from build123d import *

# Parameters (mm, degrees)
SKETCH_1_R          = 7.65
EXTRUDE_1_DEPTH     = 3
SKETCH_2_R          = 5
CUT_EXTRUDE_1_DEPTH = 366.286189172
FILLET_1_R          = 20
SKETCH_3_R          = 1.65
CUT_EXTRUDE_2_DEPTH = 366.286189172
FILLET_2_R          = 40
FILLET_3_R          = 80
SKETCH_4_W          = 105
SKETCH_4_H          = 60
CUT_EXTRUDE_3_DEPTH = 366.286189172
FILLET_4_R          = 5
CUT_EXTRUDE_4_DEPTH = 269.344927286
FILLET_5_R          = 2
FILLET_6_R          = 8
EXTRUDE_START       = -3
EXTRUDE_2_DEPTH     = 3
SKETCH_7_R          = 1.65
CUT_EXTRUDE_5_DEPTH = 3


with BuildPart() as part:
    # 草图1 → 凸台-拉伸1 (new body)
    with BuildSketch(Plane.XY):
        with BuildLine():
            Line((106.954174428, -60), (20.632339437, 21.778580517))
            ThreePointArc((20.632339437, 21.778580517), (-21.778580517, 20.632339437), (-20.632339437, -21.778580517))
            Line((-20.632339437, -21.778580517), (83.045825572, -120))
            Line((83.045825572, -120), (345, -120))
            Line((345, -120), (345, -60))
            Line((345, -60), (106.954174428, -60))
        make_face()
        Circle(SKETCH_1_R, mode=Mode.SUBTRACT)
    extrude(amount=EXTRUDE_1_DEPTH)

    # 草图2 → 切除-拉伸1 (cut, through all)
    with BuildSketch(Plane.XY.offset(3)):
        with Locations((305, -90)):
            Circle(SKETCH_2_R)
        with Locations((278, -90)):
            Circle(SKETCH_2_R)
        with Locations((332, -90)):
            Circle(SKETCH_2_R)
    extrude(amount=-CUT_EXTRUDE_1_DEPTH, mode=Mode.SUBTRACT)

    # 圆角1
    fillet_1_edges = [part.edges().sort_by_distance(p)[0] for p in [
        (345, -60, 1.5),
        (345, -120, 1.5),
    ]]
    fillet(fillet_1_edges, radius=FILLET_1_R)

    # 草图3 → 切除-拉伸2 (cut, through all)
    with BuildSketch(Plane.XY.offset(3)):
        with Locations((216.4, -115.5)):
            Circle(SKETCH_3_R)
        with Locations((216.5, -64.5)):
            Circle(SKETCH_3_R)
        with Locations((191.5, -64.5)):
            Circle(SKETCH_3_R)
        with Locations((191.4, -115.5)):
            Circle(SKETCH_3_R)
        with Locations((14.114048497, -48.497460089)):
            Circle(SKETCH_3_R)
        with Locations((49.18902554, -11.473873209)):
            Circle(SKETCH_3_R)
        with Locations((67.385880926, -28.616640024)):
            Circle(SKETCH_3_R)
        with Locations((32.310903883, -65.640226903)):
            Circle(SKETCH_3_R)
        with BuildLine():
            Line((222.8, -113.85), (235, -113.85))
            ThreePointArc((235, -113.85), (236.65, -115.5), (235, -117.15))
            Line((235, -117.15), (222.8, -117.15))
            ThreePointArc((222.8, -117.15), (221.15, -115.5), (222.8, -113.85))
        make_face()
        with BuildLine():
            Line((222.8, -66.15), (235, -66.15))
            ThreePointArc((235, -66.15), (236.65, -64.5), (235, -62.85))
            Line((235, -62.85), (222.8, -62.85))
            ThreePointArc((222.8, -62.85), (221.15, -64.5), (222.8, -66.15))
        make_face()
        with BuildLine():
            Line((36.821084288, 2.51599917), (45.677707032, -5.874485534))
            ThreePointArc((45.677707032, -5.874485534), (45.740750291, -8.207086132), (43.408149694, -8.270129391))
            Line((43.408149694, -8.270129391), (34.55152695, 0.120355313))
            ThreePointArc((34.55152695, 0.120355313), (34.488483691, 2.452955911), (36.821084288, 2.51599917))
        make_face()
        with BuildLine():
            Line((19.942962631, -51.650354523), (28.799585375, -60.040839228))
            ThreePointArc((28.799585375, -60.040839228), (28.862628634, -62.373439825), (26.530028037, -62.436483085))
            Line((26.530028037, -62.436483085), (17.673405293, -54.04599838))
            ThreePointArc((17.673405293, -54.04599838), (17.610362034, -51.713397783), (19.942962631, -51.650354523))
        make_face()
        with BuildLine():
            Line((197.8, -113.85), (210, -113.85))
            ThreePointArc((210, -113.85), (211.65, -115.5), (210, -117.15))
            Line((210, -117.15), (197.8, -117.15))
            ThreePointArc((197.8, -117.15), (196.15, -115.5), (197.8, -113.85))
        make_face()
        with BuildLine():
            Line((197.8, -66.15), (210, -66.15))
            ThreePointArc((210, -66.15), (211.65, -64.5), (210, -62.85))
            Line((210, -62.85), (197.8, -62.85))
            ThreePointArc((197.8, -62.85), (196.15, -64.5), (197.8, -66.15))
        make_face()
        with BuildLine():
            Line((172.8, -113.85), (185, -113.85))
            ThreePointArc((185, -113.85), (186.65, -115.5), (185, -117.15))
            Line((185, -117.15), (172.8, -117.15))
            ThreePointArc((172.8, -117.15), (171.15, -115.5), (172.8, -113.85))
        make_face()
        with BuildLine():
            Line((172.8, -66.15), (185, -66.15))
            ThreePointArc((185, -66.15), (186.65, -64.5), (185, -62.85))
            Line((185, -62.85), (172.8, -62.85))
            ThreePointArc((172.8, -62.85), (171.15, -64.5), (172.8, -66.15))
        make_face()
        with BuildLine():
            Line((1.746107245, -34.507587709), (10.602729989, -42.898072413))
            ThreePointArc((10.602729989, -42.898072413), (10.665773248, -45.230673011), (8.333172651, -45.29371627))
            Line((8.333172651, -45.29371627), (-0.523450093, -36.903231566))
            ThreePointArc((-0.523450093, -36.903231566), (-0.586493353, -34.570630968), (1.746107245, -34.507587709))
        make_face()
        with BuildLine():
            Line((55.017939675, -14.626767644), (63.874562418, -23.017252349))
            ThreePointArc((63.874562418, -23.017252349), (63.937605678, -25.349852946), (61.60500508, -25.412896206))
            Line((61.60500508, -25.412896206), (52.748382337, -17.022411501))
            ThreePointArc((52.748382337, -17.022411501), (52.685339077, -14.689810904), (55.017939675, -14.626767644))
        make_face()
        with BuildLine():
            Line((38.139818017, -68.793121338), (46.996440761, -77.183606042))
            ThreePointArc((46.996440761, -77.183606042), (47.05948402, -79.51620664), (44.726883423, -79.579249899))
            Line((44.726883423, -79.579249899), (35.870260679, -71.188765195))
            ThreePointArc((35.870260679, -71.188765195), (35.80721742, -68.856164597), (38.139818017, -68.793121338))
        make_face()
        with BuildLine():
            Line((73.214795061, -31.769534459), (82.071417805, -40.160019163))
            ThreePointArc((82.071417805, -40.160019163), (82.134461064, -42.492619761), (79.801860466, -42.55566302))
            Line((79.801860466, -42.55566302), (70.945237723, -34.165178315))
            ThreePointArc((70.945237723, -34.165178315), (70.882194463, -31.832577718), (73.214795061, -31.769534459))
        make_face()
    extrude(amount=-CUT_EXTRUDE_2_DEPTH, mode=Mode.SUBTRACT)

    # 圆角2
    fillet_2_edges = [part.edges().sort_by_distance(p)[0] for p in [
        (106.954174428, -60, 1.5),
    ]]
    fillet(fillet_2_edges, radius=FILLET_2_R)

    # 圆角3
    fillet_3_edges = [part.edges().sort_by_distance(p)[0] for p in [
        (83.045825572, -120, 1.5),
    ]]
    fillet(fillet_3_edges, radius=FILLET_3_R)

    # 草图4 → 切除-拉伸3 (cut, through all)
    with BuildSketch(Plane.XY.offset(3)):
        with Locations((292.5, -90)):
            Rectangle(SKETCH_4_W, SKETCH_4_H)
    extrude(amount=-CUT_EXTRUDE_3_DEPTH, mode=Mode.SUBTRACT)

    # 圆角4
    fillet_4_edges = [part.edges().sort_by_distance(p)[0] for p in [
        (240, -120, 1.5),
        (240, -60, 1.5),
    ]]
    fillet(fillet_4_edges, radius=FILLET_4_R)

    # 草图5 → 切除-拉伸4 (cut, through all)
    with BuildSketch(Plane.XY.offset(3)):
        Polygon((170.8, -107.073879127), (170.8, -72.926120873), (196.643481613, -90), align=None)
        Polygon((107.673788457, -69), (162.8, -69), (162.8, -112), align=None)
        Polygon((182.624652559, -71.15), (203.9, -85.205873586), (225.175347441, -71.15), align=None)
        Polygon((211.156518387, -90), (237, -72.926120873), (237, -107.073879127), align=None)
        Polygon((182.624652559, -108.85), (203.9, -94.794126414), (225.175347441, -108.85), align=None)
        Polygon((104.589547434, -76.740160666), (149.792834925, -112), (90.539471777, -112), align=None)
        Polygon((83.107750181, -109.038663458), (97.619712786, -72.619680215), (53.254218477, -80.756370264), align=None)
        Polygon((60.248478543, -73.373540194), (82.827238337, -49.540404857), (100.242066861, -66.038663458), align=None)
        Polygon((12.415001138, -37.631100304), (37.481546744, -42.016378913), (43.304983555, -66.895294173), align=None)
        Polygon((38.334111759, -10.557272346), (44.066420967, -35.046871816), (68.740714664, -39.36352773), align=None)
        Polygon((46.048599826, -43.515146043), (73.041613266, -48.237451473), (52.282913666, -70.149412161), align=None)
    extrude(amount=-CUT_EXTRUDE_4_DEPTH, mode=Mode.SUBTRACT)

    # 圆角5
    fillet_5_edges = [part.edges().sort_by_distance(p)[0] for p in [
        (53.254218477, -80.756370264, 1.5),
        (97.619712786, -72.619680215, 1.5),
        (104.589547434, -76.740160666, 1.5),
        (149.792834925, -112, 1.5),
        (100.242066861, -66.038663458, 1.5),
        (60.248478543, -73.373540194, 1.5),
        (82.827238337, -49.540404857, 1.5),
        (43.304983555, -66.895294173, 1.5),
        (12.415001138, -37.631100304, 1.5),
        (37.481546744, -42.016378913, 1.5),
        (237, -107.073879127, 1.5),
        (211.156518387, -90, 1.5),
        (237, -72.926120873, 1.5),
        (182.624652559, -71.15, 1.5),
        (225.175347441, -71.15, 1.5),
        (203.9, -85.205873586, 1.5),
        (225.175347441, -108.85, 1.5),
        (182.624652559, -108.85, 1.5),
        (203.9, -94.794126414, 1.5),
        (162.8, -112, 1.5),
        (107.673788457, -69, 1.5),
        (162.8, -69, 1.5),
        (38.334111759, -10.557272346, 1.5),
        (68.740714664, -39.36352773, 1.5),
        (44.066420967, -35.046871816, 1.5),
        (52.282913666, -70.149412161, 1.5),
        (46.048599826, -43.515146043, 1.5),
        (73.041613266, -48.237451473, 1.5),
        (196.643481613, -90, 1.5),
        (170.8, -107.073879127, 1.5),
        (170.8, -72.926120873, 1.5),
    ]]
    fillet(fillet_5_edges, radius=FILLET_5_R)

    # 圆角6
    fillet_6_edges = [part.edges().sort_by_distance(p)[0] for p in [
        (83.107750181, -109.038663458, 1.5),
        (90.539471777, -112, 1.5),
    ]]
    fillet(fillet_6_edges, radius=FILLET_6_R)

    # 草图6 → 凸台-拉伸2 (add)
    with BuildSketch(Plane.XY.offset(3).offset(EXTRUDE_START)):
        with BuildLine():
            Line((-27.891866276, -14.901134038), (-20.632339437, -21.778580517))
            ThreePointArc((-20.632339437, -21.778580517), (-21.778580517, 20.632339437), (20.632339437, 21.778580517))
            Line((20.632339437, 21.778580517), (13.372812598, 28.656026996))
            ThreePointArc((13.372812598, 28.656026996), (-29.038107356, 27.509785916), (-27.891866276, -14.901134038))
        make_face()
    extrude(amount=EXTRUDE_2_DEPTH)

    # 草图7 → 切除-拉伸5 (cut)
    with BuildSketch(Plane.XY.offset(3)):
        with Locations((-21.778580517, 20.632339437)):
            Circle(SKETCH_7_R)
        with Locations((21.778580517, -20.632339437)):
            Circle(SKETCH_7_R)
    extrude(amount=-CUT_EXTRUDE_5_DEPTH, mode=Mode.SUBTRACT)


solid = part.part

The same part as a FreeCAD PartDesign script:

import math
import FreeCAD as App
import Part
import Sketcher

V = App.Vector


def edges_at(feature, points):
    """Names of the edges that pass closest to the given points."""
    edges = feature.Shape.Edges
    near = lambda p: min(range(len(edges)), key=lambda i: edges[i].distToShape(Part.Vertex(*p))[0])
    return sorted({f"Edge{near(p) + 1}" for p in points})


def add_polygon(sketch, points):
    """Adds a closed chain of lines whose ends are joined by coincident constraints."""
    first, n = sketch.GeometryCount, len(points)
    for a, b in zip(points, points[1:] + points[:1]):
        sketch.addGeometry(Part.LineSegment(App.Vector(*a, 0), App.Vector(*b, 0)), False)
    for i in range(n):
        sketch.addConstraint(Sketcher.Constraint("Coincident", first + i, 2, first + (i + 1) % n, 1))

doc = App.newDocument("Part")
body = doc.addObject("PartDesign::Body", "Body")

sketch1 = body.newObject("Sketcher::SketchObject", "Sketch")
sketch1.AttachmentSupport = (doc.getObject("XY_Plane"), [""])
sketch1.MapMode = "FlatFace"
sketch1.addGeometry(Part.LineSegment(V(107, -60, 0), V(21, 22, 0)), False)
sketch1.addGeometry(Part.ArcOfCircle(Part.Circle(V(0, 0, 0), V(0, 0, 1), 30), math.radians(47), math.radians(227)), False)
sketch1.addGeometry(Part.LineSegment(V(-21, -22, 0), V(83, -120, 0)), False)
sketch1.addGeometry(Part.LineSegment(V(83, -120, 0), V(345, -120, 0)), False)
sketch1.addGeometry(Part.LineSegment(V(345, -120, 0), V(345, -60, 0)), False)
sketch1.addGeometry(Part.LineSegment(V(345, -60, 0), V(107, -60, 0)), False)
sketch1.addGeometry(Part.Circle(V(0, 0, 0), V(0, 0, 1), 8), False)
sketch1.addConstraint(Sketcher.Constraint("Tangent", 0, 2, 1, 1))
sketch1.addConstraint(Sketcher.Constraint("Tangent", 1, 2, 2, 1))
sketch1.addConstraint(Sketcher.Constraint("Coincident", 2, 2, 3, 1))
sketch1.addConstraint(Sketcher.Constraint("Coincident", 3, 2, 4, 1))
sketch1.addConstraint(Sketcher.Constraint("Coincident", 4, 2, 5, 1))
sketch1.addConstraint(Sketcher.Constraint("Coincident", 5, 2, 0, 1))
sketch1.addConstraint(Sketcher.Constraint("Horizontal", 3))
sketch1.addConstraint(Sketcher.Constraint("Vertical", 4))
sketch1.addConstraint(Sketcher.Constraint("Horizontal", 5))
sketch1.addConstraint(Sketcher.Constraint("Coincident", 1, 3, -1, 1))
sketch1.addConstraint(Sketcher.Constraint("Coincident", 6, 3, -1, 1))
sketch1.addConstraint(Sketcher.Constraint("Parallel", 0, 2))
sketch1.addConstraint(Sketcher.Constraint("Radius", 1, 30.0))
sketch1.addConstraint(Sketcher.Constraint("Diameter", 6, 15.3))
sketch1.addConstraint(Sketcher.Constraint("DistanceY", 4, 1, 4, 2, 60.0))
sketch1.addConstraint(Sketcher.Constraint("DistanceY", 2, 2, -1, 1, 120.0))
sketch1.addConstraint(Sketcher.Constraint("DistanceX", -1, 1, 3, 2, 345.0))
sketch1.addConstraint(Sketcher.Constraint("Distance", 0, 118.908349))
pad1 = body.newObject("PartDesign::Pad", "Pad")
pad1.Profile = sketch1
pad1.Length = 3

sketch2 = body.newObject("Sketcher::SketchObject", "Sketch001")
sketch2.AttachmentSupport = (doc.getObject("XY_Plane"), [""])
sketch2.MapMode = "FlatFace"
sketch2.AttachmentOffset = App.Placement(V(0, 0, 3), App.Rotation())
sketch2.addGeometry(Part.Circle(V(305, -90, 0), V(0, 0, 1), 5), False)
sketch2.addGeometry(Part.Circle(V(278, -90, 0), V(0, 0, 1), 5), False)
sketch2.addGeometry(Part.Circle(V(332, -90, 0), V(0, 0, 1), 5), False)
sketch2.addConstraint(Sketcher.Constraint("Equal", 0, 1))
sketch2.addConstraint(Sketcher.Constraint("Equal", 1, 2))
sketch2.addConstraint(Sketcher.Constraint("Horizontal", 0, 3, 1, 3))
sketch2.addConstraint(Sketcher.Constraint("Horizontal", 1, 3, 2, 3))
sketch2.addConstraint(Sketcher.Constraint("Diameter", 0, 10.0))
sketch2.addConstraint(Sketcher.Constraint("DistanceX", -1, 1, 0, 3, 305.0))
sketch2.addConstraint(Sketcher.Constraint("DistanceY", 0, 3, -1, 1, 90.0))
sketch2.addConstraint(Sketcher.Constraint("DistanceX", -1, 1, 1, 3, 278.0))
sketch2.addConstraint(Sketcher.Constraint("DistanceX", -1, 1, 2, 3, 332.0))
pocket1 = body.newObject("PartDesign::Pocket", "Pocket")
pocket1.Profile = sketch2
pocket1.Type = "ThroughAll"
doc.recompute()

fillet = body.newObject("PartDesign::Fillet", "Fillet")
fillet.Base = (pocket1, edges_at(pocket1, [(345, -60, 1.5), (345, -120, 1.5)]))
fillet.Radius = 20

sketch3 = body.newObject("Sketcher::SketchObject", "Sketch002")
sketch3.AttachmentSupport = (doc.getObject("XY_Plane"), [""])
sketch3.MapMode = "FlatFace"
sketch3.AttachmentOffset = App.Placement(V(0, 0, 3), App.Rotation())
sketch3.addGeometry(Part.Circle(V(216.4, -115.5, 0), V(0, 0, 1), 1.6), False)
sketch3.addGeometry(Part.Circle(V(216.5, -64.5, 0), V(0, 0, 1), 1.6), False)
sketch3.addGeometry(Part.Circle(V(191.5, -64.5, 0), V(0, 0, 1), 1.6), False)
sketch3.addGeometry(Part.Circle(V(191.4, -115.5, 0), V(0, 0, 1), 1.6), False)
sketch3.addGeometry(Part.Circle(V(14.1, -48.5, 0), V(0, 0, 1), 1.6), False)
sketch3.addGeometry(Part.Circle(V(49.2, -11.5, 0), V(0, 0, 1), 1.6), False)
sketch3.addGeometry(Part.Circle(V(67.4, -28.6, 0), V(0, 0, 1), 1.6), False)
sketch3.addGeometry(Part.Circle(V(32.3, -65.6, 0), V(0, 0, 1), 1.6), False)
sketch3.addGeometry(Part.LineSegment(V(235, -113.8, 0), V(222.8, -113.8, 0)), False)
sketch3.addGeometry(Part.ArcOfCircle(Part.Circle(V(222.8, -115.5, 0), V(0, 0, 1), 1.6), math.radians(90), math.radians(270)), False)
sketch3.addGeometry(Part.LineSegment(V(222.8, -117.2, 0), V(235, -117.2, 0)), False)
sketch3.addGeometry(Part.ArcOfCircle(Part.Circle(V(235, -115.5, 0), V(0, 0, 1), 1.6), math.radians(-90), math.radians(90)), False)
sketch3.addGeometry(Part.LineSegment(V(222.8, -66.2, 0), V(235, -66.2, 0)), False)
sketch3.addGeometry(Part.ArcOfCircle(Part.Circle(V(235, -64.5, 0), V(0, 0, 1), 1.6), math.radians(-90), math.radians(90)), False)
sketch3.addGeometry(Part.LineSegment(V(235, -62.9, 0), V(222.8, -62.9, 0)), False)
sketch3.addGeometry(Part.ArcOfCircle(Part.Circle(V(222.8, -64.5, 0), V(0, 0, 1), 1.6), math.radians(90), math.radians(270)), False)
sketch3.addGeometry(Part.LineSegment(V(45.7, -5.9, 0), V(36.8, 2.5, 0)), False)
sketch3.addGeometry(Part.ArcOfCircle(Part.Circle(V(35.7, 1.3, 0), V(0, 0, 1), 1.6), math.radians(47), math.radians(227)), False)
sketch3.addGeometry(Part.LineSegment(V(34.6, 0.1, 0), V(43.4, -8.3, 0)), False)
sketch3.addGeometry(Part.ArcOfCircle(Part.Circle(V(44.5, -7.1, 0), V(0, 0, 1), 1.6), math.radians(-133), math.radians(47)), False)
sketch3.addGeometry(Part.LineSegment(V(28.8, -60, 0), V(19.9, -51.7, 0)), False)
sketch3.addGeometry(Part.ArcOfCircle(Part.Circle(V(18.8, -52.8, 0), V(0, 0, 1), 1.6), math.radians(47), math.radians(227)), False)
sketch3.addGeometry(Part.LineSegment(V(17.7, -54, 0), V(26.5, -62.4, 0)), False)
sketch3.addGeometry(Part.ArcOfCircle(Part.Circle(V(27.7, -61.2, 0), V(0, 0, 1), 1.6), math.radians(-133), math.radians(47)), False)
sketch3.addGeometry(Part.LineSegment(V(210, -113.8, 0), V(197.8, -113.8, 0)), False)
sketch3.addGeometry(Part.ArcOfCircle(Part.Circle(V(197.8, -115.5, 0), V(0, 0, 1), 1.6), math.radians(90), math.radians(270)), False)
sketch3.addGeometry(Part.LineSegment(V(197.8, -117.2, 0), V(210, -117.2, 0)), False)
sketch3.addGeometry(Part.ArcOfCircle(Part.Circle(V(210, -115.5, 0), V(0, 0, 1), 1.6), math.radians(-90), math.radians(90)), False)
sketch3.addGeometry(Part.LineSegment(V(197.8, -66.2, 0), V(210, -66.2, 0)), False)
sketch3.addGeometry(Part.ArcOfCircle(Part.Circle(V(210, -64.5, 0), V(0, 0, 1), 1.6), math.radians(-90), math.radians(90)), False)
sketch3.addGeometry(Part.LineSegment(V(210, -62.9, 0), V(197.8, -62.9, 0)), False)
sketch3.addGeometry(Part.ArcOfCircle(Part.Circle(V(197.8, -64.5, 0), V(0, 0, 1), 1.6), math.radians(90), math.radians(270)), False)
sketch3.addGeometry(Part.LineSegment(V(185, -113.8, 0), V(172.8, -113.8, 0)), False)
sketch3.addGeometry(Part.ArcOfCircle(Part.Circle(V(172.8, -115.5, 0), V(0, 0, 1), 1.6), math.radians(90), math.radians(270)), False)
sketch3.addGeometry(Part.LineSegment(V(172.8, -117.2, 0), V(185, -117.2, 0)), False)
sketch3.addGeometry(Part.ArcOfCircle(Part.Circle(V(185, -115.5, 0), V(0, 0, 1), 1.6), math.radians(-90), math.radians(90)), False)
sketch3.addGeometry(Part.LineSegment(V(172.8, -66.2, 0), V(185, -66.2, 0)), False)
sketch3.addGeometry(Part.ArcOfCircle(Part.Circle(V(185, -64.5, 0), V(0, 0, 1), 1.6), math.radians(-90), math.radians(90)), False)
sketch3.addGeometry(Part.LineSegment(V(185, -62.9, 0), V(172.8, -62.9, 0)), False)
sketch3.addGeometry(Part.ArcOfCircle(Part.Circle(V(172.8, -64.5, 0), V(0, 0, 1), 1.6), math.radians(90), math.radians(270)), False)
sketch3.addGeometry(Part.LineSegment(V(10.6, -42.9, 0), V(1.7, -34.5, 0)), False)
sketch3.addGeometry(Part.ArcOfCircle(Part.Circle(V(0.6, -35.7, 0), V(0, 0, 1), 1.6), math.radians(47), math.radians(227)), False)
sketch3.addGeometry(Part.LineSegment(V(-0.5, -36.9, 0), V(8.3, -45.3, 0)), False)
sketch3.addGeometry(Part.ArcOfCircle(Part.Circle(V(9.5, -44.1, 0), V(0, 0, 1), 1.6), math.radians(-133), math.radians(47)), False)
sketch3.addGeometry(Part.LineSegment(V(63.9, -23, 0), V(55, -14.6, 0)), False)
sketch3.addGeometry(Part.ArcOfCircle(Part.Circle(V(53.9, -15.8, 0), V(0, 0, 1), 1.6), math.radians(47), math.radians(227)), False)
sketch3.addGeometry(Part.LineSegment(V(52.7, -17, 0), V(61.6, -25.4, 0)), False)
sketch3.addGeometry(Part.ArcOfCircle(Part.Circle(V(62.7, -24.2, 0), V(0, 0, 1), 1.6), math.radians(-133), math.radians(47)), False)
sketch3.addGeometry(Part.LineSegment(V(47, -77.2, 0), V(38.1, -68.8, 0)), False)
sketch3.addGeometry(Part.ArcOfCircle(Part.Circle(V(37, -70, 0), V(0, 0, 1), 1.6), math.radians(47), math.radians(227)), False)
sketch3.addGeometry(Part.LineSegment(V(35.9, -71.2, 0), V(44.7, -79.6, 0)), False)
sketch3.addGeometry(Part.ArcOfCircle(Part.Circle(V(45.9, -78.4, 0), V(0, 0, 1), 1.6), math.radians(-133), math.radians(47)), False)
sketch3.addGeometry(Part.LineSegment(V(82.1, -40.2, 0), V(73.2, -31.8, 0)), False)
sketch3.addGeometry(Part.ArcOfCircle(Part.Circle(V(72.1, -33, 0), V(0, 0, 1), 1.6), math.radians(47), math.radians(227)), False)
sketch3.addGeometry(Part.LineSegment(V(70.9, -34.2, 0), V(79.8, -42.6, 0)), False)
sketch3.addGeometry(Part.ArcOfCircle(Part.Circle(V(80.9, -41.4, 0), V(0, 0, 1), 1.6), math.radians(-133), math.radians(47)), False)
sketch3.addConstraint(Sketcher.Constraint("Tangent", 8, 2, 9, 1))
sketch3.addConstraint(Sketcher.Constraint("Tangent", 9, 2, 10, 1))
sketch3.addConstraint(Sketcher.Constraint("Tangent", 10, 2, 11, 1))
sketch3.addConstraint(Sketcher.Constraint("Tangent", 11, 2, 8, 1))
sketch3.addConstraint(Sketcher.Constraint("Tangent", 12, 2, 13, 1))
sketch3.addConstraint(Sketcher.Constraint("Tangent", 13, 2, 14, 1))
sketch3.addConstraint(Sketcher.Constraint("Tangent", 14, 2, 15, 1))
sketch3.addConstraint(Sketcher.Constraint("Tangent", 15, 2, 12, 1))
sketch3.addConstraint(Sketcher.Constraint("Tangent", 16, 2, 17, 1))
sketch3.addConstraint(Sketcher.Constraint("Tangent", 17, 2, 18, 1))
sketch3.addConstraint(Sketcher.Constraint("Tangent", 18, 2, 19, 1))
sketch3.addConstraint(Sketcher.Constraint("Tangent", 19, 2, 16, 1))
sketch3.addConstraint(Sketcher.Constraint("Tangent", 20, 2, 21, 1))
sketch3.addConstraint(Sketcher.Constraint("Tangent", 21, 2, 22, 1))
sketch3.addConstraint(Sketcher.Constraint("Tangent", 22, 2, 23, 1))
sketch3.addConstraint(Sketcher.Constraint("Tangent", 23, 2, 20, 1))
sketch3.addConstraint(Sketcher.Constraint("Tangent", 24, 2, 25, 1))
sketch3.addConstraint(Sketcher.Constraint("Tangent", 25, 2, 26, 1))
sketch3.addConstraint(Sketcher.Constraint("Tangent", 26, 2, 27, 1))
sketch3.addConstraint(Sketcher.Constraint("Tangent", 27, 2, 24, 1))
sketch3.addConstraint(Sketcher.Constraint("Tangent", 28, 2, 29, 1))
sketch3.addConstraint(Sketcher.Constraint("Tangent", 29, 2, 30, 1))
sketch3.addConstraint(Sketcher.Constraint("Tangent", 30, 2, 31, 1))
sketch3.addConstraint(Sketcher.Constraint("Tangent", 31, 2, 28, 1))
sketch3.addConstraint(Sketcher.Constraint("Tangent", 32, 2, 33, 1))
sketch3.addConstraint(Sketcher.Constraint("Tangent", 33, 2, 34, 1))
sketch3.addConstraint(Sketcher.Constraint("Tangent", 34, 2, 35, 1))
sketch3.addConstraint(Sketcher.Constraint("Tangent", 35, 2, 32, 1))
sketch3.addConstraint(Sketcher.Constraint("Tangent", 36, 2, 37, 1))
sketch3.addConstraint(Sketcher.Constraint("Tangent", 37, 2, 38, 1))
sketch3.addConstraint(Sketcher.Constraint("Tangent", 38, 2, 39, 1))
sketch3.addConstraint(Sketcher.Constraint("Tangent", 39, 2, 36, 1))
sketch3.addConstraint(Sketcher.Constraint("Tangent", 40, 2, 41, 1))
sketch3.addConstraint(Sketcher.Constraint("Tangent", 41, 2, 42, 1))
sketch3.addConstraint(Sketcher.Constraint("Tangent", 42, 2, 43, 1))
sketch3.addConstraint(Sketcher.Constraint("Tangent", 43, 2, 40, 1))
sketch3.addConstraint(Sketcher.Constraint("Tangent", 44, 2, 45, 1))
sketch3.addConstraint(Sketcher.Constraint("Tangent", 45, 2, 46, 1))
sketch3.addConstraint(Sketcher.Constraint("Tangent", 46, 2, 47, 1))
sketch3.addConstraint(Sketcher.Constraint("Tangent", 47, 2, 44, 1))
sketch3.addConstraint(Sketcher.Constraint("Tangent", 48, 2, 49, 1))
sketch3.addConstraint(Sketcher.Constraint("Tangent", 49, 2, 50, 1))
sketch3.addConstraint(Sketcher.Constraint("Tangent", 50, 2, 51, 1))
sketch3.addConstraint(Sketcher.Constraint("Tangent", 51, 2, 48, 1))
sketch3.addConstraint(Sketcher.Constraint("Tangent", 52, 2, 53, 1))
sketch3.addConstraint(Sketcher.Constraint("Tangent", 53, 2, 54, 1))
sketch3.addConstraint(Sketcher.Constraint("Tangent", 54, 2, 55, 1))
sketch3.addConstraint(Sketcher.Constraint("Tangent", 55, 2, 52, 1))
sketch3.addConstraint(Sketcher.Constraint("Horizontal", 8))
sketch3.addConstraint(Sketcher.Constraint("Horizontal", 10))
sketch3.addConstraint(Sketcher.Constraint("Horizontal", 12))
sketch3.addConstraint(Sketcher.Constraint("Horizontal", 14))
sketch3.addConstraint(Sketcher.Constraint("Horizontal", 24))
sketch3.addConstraint(Sketcher.Constraint("Horizontal", 26))
sketch3.addConstraint(Sketcher.Constraint("Horizontal", 28))
sketch3.addConstraint(Sketcher.Constraint("Horizontal", 30))
sketch3.addConstraint(Sketcher.Constraint("Horizontal", 32))
sketch3.addConstraint(Sketcher.Constraint("Horizontal", 34))
sketch3.addConstraint(Sketcher.Constraint("Horizontal", 36))
sketch3.addConstraint(Sketcher.Constraint("Horizontal", 38))
sketch3.addConstraint(Sketcher.Constraint("Equal", 0, 1))
sketch3.addConstraint(Sketcher.Constraint("Equal", 1, 2))
sketch3.addConstraint(Sketcher.Constraint("Equal", 2, 3))
sketch3.addConstraint(Sketcher.Constraint("Equal", 3, 4))
sketch3.addConstraint(Sketcher.Constraint("Equal", 4, 5))
sketch3.addConstraint(Sketcher.Constraint("Equal", 5, 6))
sketch3.addConstraint(Sketcher.Constraint("Equal", 6, 7))
sketch3.addConstraint(Sketcher.Constraint("Equal", 7, 9))
sketch3.addConstraint(Sketcher.Constraint("Equal", 11, 13))
sketch3.addConstraint(Sketcher.Constraint("Equal", 15, 17))
sketch3.addConstraint(Sketcher.Constraint("Equal", 17, 19))
sketch3.addConstraint(Sketcher.Constraint("Equal", 19, 21))
sketch3.addConstraint(Sketcher.Constraint("Equal", 21, 23))
sketch3.addConstraint(Sketcher.Constraint("Equal", 23, 25))
sketch3.addConstraint(Sketcher.Constraint("Equal", 27, 29))
sketch3.addConstraint(Sketcher.Constraint("Equal", 31, 33))
sketch3.addConstraint(Sketcher.Constraint("Equal", 35, 37))
sketch3.addConstraint(Sketcher.Constraint("Equal", 39, 41))
sketch3.addConstraint(Sketcher.Constraint("Equal", 41, 43))
sketch3.addConstraint(Sketcher.Constraint("Equal", 43, 45))
sketch3.addConstraint(Sketcher.Constraint("Equal", 45, 47))
sketch3.addConstraint(Sketcher.Constraint("Equal", 47, 49))
sketch3.addConstraint(Sketcher.Constraint("Equal", 49, 51))
sketch3.addConstraint(Sketcher.Constraint("Equal", 51, 53))
sketch3.addConstraint(Sketcher.Constraint("Equal", 53, 55))
sketch3.addConstraint(Sketcher.Constraint("Parallel", 18, 20))
sketch3.addConstraint(Sketcher.Constraint("Parallel", 22, 40))
sketch3.addConstraint(Sketcher.Constraint("Parallel", 42, 44))
sketch3.addConstraint(Sketcher.Constraint("Parallel", 46, 48))
sketch3.addConstraint(Sketcher.Constraint("Parallel", 50, 52))
sketch3.addConstraint(Sketcher.Constraint("Horizontal", 1, 3, 2, 3))
sketch3.addConstraint(Sketcher.Constraint("Horizontal", 0, 3, 3, 3))
sketch3.addConstraint(Sketcher.Constraint("Horizontal", 3, 3, 9, 3))
sketch3.addConstraint(Sketcher.Constraint("Horizontal", 2, 3, 13, 3))
sketch3.addConstraint(Sketcher.Constraint("Horizontal", 11, 3, 25, 3))
sketch3.addConstraint(Sketcher.Constraint("Horizontal", 15, 3, 29, 3))
sketch3.addConstraint(Sketcher.Constraint("Horizontal", 27, 3, 33, 3))
sketch3.addConstraint(Sketcher.Constraint("Horizontal", 31, 3, 37, 3))
sketch3.addConstraint(Sketcher.Constraint("Vertical", 11, 3, 13, 3))
sketch3.addConstraint(Sketcher.Constraint("Vertical", 9, 3, 15, 3))
sketch3.addConstraint(Sketcher.Constraint("Vertical", 27, 3, 29, 3))
sketch3.addConstraint(Sketcher.Constraint("Vertical", 25, 3, 31, 3))
sketch3.addConstraint(Sketcher.Constraint("Vertical", 35, 3, 37, 3))
sketch3.addConstraint(Sketcher.Constraint("Vertical", 33, 3, 39, 3))
sketch3.addConstraint(Sketcher.Constraint("Equal", 14, 24))
sketch3.addConstraint(Sketcher.Constraint("Equal", 30, 32))
sketch3.addConstraint(Sketcher.Constraint("Equal", 18, 20))
sketch3.addConstraint(Sketcher.Constraint("Equal", 22, 40))
sketch3.addConstraint(Sketcher.Constraint("Equal", 42, 44))
sketch3.addConstraint(Sketcher.Constraint("Equal", 46, 48))
sketch3.addConstraint(Sketcher.Constraint("Equal", 50, 52))
sketch3.addConstraint(Sketcher.Constraint("Diameter", 0, 3.3))
sketch3.addConstraint(Sketcher.Constraint("DistanceX", 8, 2, 8, 1, 12.2))
sketch3.addConstraint(Sketcher.Constraint("DistanceX", -1, 1, 11, 3, 235.0))
sketch3.addConstraint(Sketcher.Constraint("DistanceX", -1, 1, 27, 3, 210.0))
sketch3.addConstraint(Sketcher.Constraint("DistanceX", -1, 1, 35, 3, 185.0))
sketch3.addConstraint(Sketcher.Constraint("Distance", 16, 12.2))
sketch3.addConstraint(Sketcher.Constraint("DistanceX", -1, 1, 0, 3, 216.4))
sketch3.addConstraint(Sketcher.Constraint("DistanceY", 0, 3, -1, 1, 115.5))
sketch3.addConstraint(Sketcher.Constraint("DistanceX", -1, 1, 1, 3, 216.5))
sketch3.addConstraint(Sketcher.Constraint("DistanceY", 1, 3, -1, 1, 64.5))
sketch3.addConstraint(Sketcher.Constraint("DistanceX", -1, 1, 2, 3, 191.5))
sketch3.addConstraint(Sketcher.Constraint("DistanceX", -1, 1, 3, 3, 191.4))
sketch3.addConstraint(Sketcher.Constraint("DistanceY", -1, 1, 16, 2, 2.515999))
sketch3.addConstraint(Sketcher.Constraint("DistanceY", 21, 2, -1, 1, 54.045998))
sketch3.addConstraint(Sketcher.Constraint("DistanceX", -1, 1, 4, 3, 14.114048))
sketch3.addConstraint(Sketcher.Constraint("DistanceY", 4, 3, -1, 1, 48.49746))
sketch3.addConstraint(Sketcher.Constraint("DistanceX", -1, 1, 6, 3, 67.385881))
sketch3.addConstraint(Sketcher.Constraint("DistanceY", 6, 3, -1, 1, 28.61664))
sketch3.addConstraint(Sketcher.Constraint("DistanceX", -1, 1, 19, 3, 44.542928))
sketch3.addConstraint(Sketcher.Constraint("DistanceY", 23, 3, -1, 1, 61.238661))
sketch3.addConstraint(Sketcher.Constraint("DistanceX", -1, 1, 41, 3, 0.611329))
sketch3.addConstraint(Sketcher.Constraint("DistanceY", 41, 3, -1, 1, 35.70541))
sketch3.addConstraint(Sketcher.Constraint("DistanceX", -1, 1, 45, 3, 53.883161))
sketch3.addConstraint(Sketcher.Constraint("DistanceY", 45, 3, -1, 1, 15.82459))
sketch3.addConstraint(Sketcher.Constraint("DistanceX", -1, 1, 49, 3, 37.005039))
sketch3.addConstraint(Sketcher.Constraint("DistanceX", -1, 1, 55, 3, 80.936639))
sketch3.addConstraint(Sketcher.Constraint("DistanceY", 55, 3, -1, 1, 41.357841))
sketch3.addConstraint(Sketcher.Constraint("DistanceX", -1, 1, 22, 2, 26.530028))
sketch3.addConstraint(Sketcher.Constraint("DistanceY", 48, 2, -1, 1, 68.793121))
sketch3.addConstraint(Sketcher.Constraint("DistanceX", -1, 1, 5, 3, 49.189026))
sketch3.addConstraint(Sketcher.Constraint("DistanceY", 5, 3, -1, 1, 11.473873))
sketch3.addConstraint(Sketcher.Constraint("DistanceX", -1, 1, 7, 3, 32.310904))
sketch3.addConstraint(Sketcher.Constraint("DistanceY", 7, 3, -1, 1, 65.640227))
pocket2 = body.newObject("PartDesign::Pocket", "Pocket001")
pocket2.Profile = sketch3
pocket2.Type = "ThroughAll"
doc.recompute()

fillet2 = body.newObject("PartDesign::Fillet", "Fillet001")
fillet2.Base = (pocket2, edges_at(pocket2, [(106.954, -60, 1.5)]))
fillet2.Radius = 40
doc.recompute()

fillet3 = body.newObject("PartDesign::Fillet", "Fillet002")
fillet3.Base = (fillet2, edges_at(fillet2, [(83.046, -120, 1.5)]))
fillet3.Radius = 80

sketch4 = body.newObject("Sketcher::SketchObject", "Sketch003")
sketch4.AttachmentSupport = (doc.getObject("XY_Plane"), [""])
sketch4.MapMode = "FlatFace"
sketch4.AttachmentOffset = App.Placement(V(0, 0, 3), App.Rotation())
add_polygon(sketch4, [(240, -60), (240, -120), (345, -120), (345, -60)])
sketch4.addConstraint(Sketcher.Constraint("Vertical", 0))
sketch4.addConstraint(Sketcher.Constraint("Horizontal", 1))
sketch4.addConstraint(Sketcher.Constraint("Vertical", 2))
sketch4.addConstraint(Sketcher.Constraint("Horizontal", 3))
sketch4.addConstraint(Sketcher.Constraint("DistanceX", 1, 1, 1, 2, 105.0))
sketch4.addConstraint(Sketcher.Constraint("DistanceY", 0, 2, 0, 1, 60.0))
sketch4.addConstraint(Sketcher.Constraint("DistanceX", -1, 1, 0, 2, 240.0))
sketch4.addConstraint(Sketcher.Constraint("DistanceY", 0, 2, -1, 1, 120.0))
pocket3 = body.newObject("PartDesign::Pocket", "Pocket002")
pocket3.Profile = sketch4
pocket3.Type = "ThroughAll"
doc.recompute()

fillet4 = body.newObject("PartDesign::Fillet", "Fillet003")
fillet4.Base = (pocket3, edges_at(pocket3, [(240, -120, 1.5), (240, -60, 1.5)]))
fillet4.Radius = 5

sketch5 = body.newObject("Sketcher::SketchObject", "Sketch004")
sketch5.AttachmentSupport = (doc.getObject("XY_Plane"), [""])
sketch5.MapMode = "FlatFace"
sketch5.AttachmentOffset = App.Placement(V(0, 0, 3), App.Rotation())
add_polygon(sketch5, [(171, -73), (171, -107), (197, -90)])
add_polygon(sketch5, [(163, -69), (108, -69), (163, -112)])
add_polygon(sketch5, [(183, -71), (204, -85), (225, -71)])
add_polygon(sketch5, [(237, -73), (211, -90), (237, -107)])
add_polygon(sketch5, [(204, -95), (183, -109), (225, -109)])
add_polygon(sketch5, [(150, -112), (105, -77), (91, -112)])
add_polygon(sketch5, [(83, -109), (98, -73), (53, -81)])
add_polygon(sketch5, [(83, -50), (60, -73), (100, -66)])
add_polygon(sketch5, [(37, -42), (12, -38), (43, -67)])
add_polygon(sketch5, [(38, -11), (44, -35), (69, -39)])
add_polygon(sketch5, [(73, -48), (46, -44), (52, -70)])
sketch5.addConstraint(Sketcher.Constraint("Vertical", 0))
sketch5.addConstraint(Sketcher.Constraint("Horizontal", 3))
sketch5.addConstraint(Sketcher.Constraint("Vertical", 5))
sketch5.addConstraint(Sketcher.Constraint("Horizontal", 8))
sketch5.addConstraint(Sketcher.Constraint("Vertical", 11))
sketch5.addConstraint(Sketcher.Constraint("Horizontal", 13))
sketch5.addConstraint(Sketcher.Constraint("Horizontal", 17))
sketch5.addConstraint(Sketcher.Constraint("Parallel", 2, 6))
sketch5.addConstraint(Sketcher.Constraint("Parallel", 1, 7))
sketch5.addConstraint(Sketcher.Constraint("Parallel", 7, 9))
sketch5.addConstraint(Sketcher.Constraint("Parallel", 6, 10))
sketch5.addConstraint(Sketcher.Constraint("Parallel", 9, 12))
sketch5.addConstraint(Sketcher.Constraint("Parallel", 10, 14))
sketch5.addConstraint(Sketcher.Constraint("Parallel", 4, 15))
sketch5.addConstraint(Sketcher.Constraint("Parallel", 16, 18))
sketch5.addConstraint(Sketcher.Constraint("Perpendicular", 20, 21))
sketch5.addConstraint(Sketcher.Constraint("Parallel", 19, 22))
sketch5.addConstraint(Sketcher.Constraint("Perpendicular", 21, 23))
sketch5.addConstraint(Sketcher.Constraint("Parallel", 23, 25))
sketch5.addConstraint(Sketcher.Constraint("Parallel", 26, 27))
sketch5.addConstraint(Sketcher.Constraint("Parallel", 24, 28))
sketch5.addConstraint(Sketcher.Constraint("Parallel", 25, 29))
sketch5.addConstraint(Sketcher.Constraint("Parallel", 28, 30))
sketch5.addConstraint(Sketcher.Constraint("Parallel", 27, 31))
sketch5.addConstraint(Sketcher.Constraint("Perpendicular", 29, 32))
sketch5.addConstraint(Sketcher.Constraint("Horizontal", 1, 2, 9, 2))
sketch5.addConstraint(Sketcher.Constraint("Horizontal", 0, 2, 10, 2))
sketch5.addConstraint(Sketcher.Constraint("Horizontal", 2, 2, 11, 2))
sketch5.addConstraint(Sketcher.Constraint("Horizontal", 4, 2, 16, 2))
sketch5.addConstraint(Sketcher.Constraint("Vertical", 8, 2, 12, 2))
sketch5.addConstraint(Sketcher.Constraint("Vertical", 7, 2, 13, 2))
sketch5.addConstraint(Sketcher.Constraint("DistanceY", 5, 1, 5, 2, 43.0))
sketch5.addConstraint(Sketcher.Constraint("DistanceY", 1, 2, -1, 1, 90.0))
sketch5.addConstraint(Sketcher.Constraint("DistanceY", 3, 2, -1, 1, 69.0))
sketch5.addConstraint(Sketcher.Constraint("DistanceX", -1, 1, 10, 2, 237.0))
sketch5.addConstraint(Sketcher.Constraint("DistanceX", 4, 2, 0, 2, 8.0))
sketch5.addConstraint(Sketcher.Constraint("DistanceY", 20, 2, 22, 2, 43.0))
sketch5.addConstraint(Sketcher.Constraint("DistanceX", -1, 1, 0, 2, 170.8))
sketch5.addConstraint(Sketcher.Constraint("DistanceX", -1, 1, 6, 2, 203.9))
sketch5.addConstraint(Sketcher.Constraint("DistanceY", 13, 2, 7, 2, 37.7))
sketch5.addConstraint(Sketcher.Constraint("DistanceY", 7, 2, -1, 1, 71.15))
sketch5.addConstraint(Sketcher.Constraint("DistanceX", -1, 1, 24, 2, 12.415001))
sketch5.addConstraint(Sketcher.Constraint("DistanceX", 3, 2, 3, 1, 55.126212))
sketch5.addConstraint(Sketcher.Constraint("DistanceY", 0, 2, 0, 1, 34.147758))
sketch5.addConstraint(Sketcher.Constraint("DistanceY", 24, 2, -1, 1, 37.6311))
sketch5.addConstraint(Sketcher.Constraint("DistanceX", -1, 1, 30, 2, 46.0486))
sketch5.addConstraint(Sketcher.Constraint("DistanceY", 27, 2, 29, 2, 24.489599))
sketch5.addConstraint(Sketcher.Constraint("DistanceX", 28, 2, 32, 2, 4.300899))
sketch5.addConstraint(Sketcher.Constraint("DistanceX", 31, 2, 32, 2, 20.7587))
sketch5.addConstraint(Sketcher.Constraint("Distance", 1, 30.974229))
sketch5.addConstraint(Sketcher.Constraint("Distance", 15, 57.328819))
sketch5.addConstraint(Sketcher.Constraint("Distance", 16, 37.956039))
sketch5.addConstraint(Sketcher.Constraint("Distance", 18, 39.203819))
sketch5.addConstraint(Sketcher.Constraint("Distance", 21, 32.83015))
sketch5.addConstraint(Sketcher.Constraint("Distance", 22, 40.660639))
sketch5.addConstraint(Sketcher.Constraint("Distance", 25, 42.550958))
sketch5.addConstraint(Sketcher.Constraint("Distance", 32, 30.183731))
sketch5.addConstraint(Sketcher.Constraint("DistanceX", 8, 2, 8, 1, 42.550695))
sketch5.addConstraint(Sketcher.Constraint("DistanceX", -1, 1, 16, 2, 90.539472))
sketch5.addConstraint(Sketcher.Constraint("DistanceY", 18, 2, -1, 1, 72.61968))
sketch5.addConstraint(Sketcher.Constraint("DistanceX", -1, 1, 19, 2, 53.254218))
sketch5.addConstraint(Sketcher.Constraint("DistanceX", -1, 1, 21, 2, 60.248479))
sketch5.addConstraint(Sketcher.Constraint("DistanceY", 26, 2, -1, 1, 42.016379))
sketch5.addConstraint(Sketcher.Constraint("DistanceX", -1, 1, 27, 2, 44.066421))
sketch5.addConstraint(Sketcher.Constraint("DistanceY", 27, 2, -1, 1, 35.046872))
sketch5.addConstraint(Sketcher.Constraint("DistanceY", 32, 2, -1, 1, 48.237451))
pocket4 = body.newObject("PartDesign::Pocket", "Pocket003")
pocket4.Profile = sketch5
pocket4.Type = "ThroughAll"
doc.recompute()

fillet5 = body.newObject("PartDesign::Fillet", "Fillet004")
fillet5.Base = (pocket4, edges_at(pocket4, [
    (53.254, -80.756, 1.5),
    (97.62, -72.62, 1.5),
    (104.59, -76.74, 1.5),
    (149.793, -112, 1.5),
    (100.242, -66.039, 1.5),
    (60.248, -73.374, 1.5),
    (82.827, -49.54, 1.5),
    (43.305, -66.895, 1.5),
    (12.415, -37.631, 1.5),
    (37.482, -42.016, 1.5),
    (237, -107.074, 1.5),
    (211.157, -90, 1.5),
    (237, -72.926, 1.5),
    (182.625, -71.15, 1.5),
    (225.175, -71.15, 1.5),
    (203.9, -85.206, 1.5),
    (225.175, -108.85, 1.5),
    (182.625, -108.85, 1.5),
    (203.9, -94.794, 1.5),
    (162.8, -112, 1.5),
    (107.674, -69, 1.5),
    (162.8, -69, 1.5),
    (38.334, -10.557, 1.5),
    (68.741, -39.364, 1.5),
    (44.066, -35.047, 1.5),
    (52.283, -70.149, 1.5),
    (46.049, -43.515, 1.5),
    (73.042, -48.237, 1.5),
    (196.643, -90, 1.5),
    (170.8, -107.074, 1.5),
    (170.8, -72.926, 1.5),
]))
fillet5.Radius = 2
doc.recompute()

fillet6 = body.newObject("PartDesign::Fillet", "Fillet005")
fillet6.Base = (fillet5, edges_at(fillet5, [(83.108, -109.039, 1.5), (90.539, -112, 1.5)]))
fillet6.Radius = 8

sketch6 = body.newObject("Sketcher::SketchObject", "Sketch005")
sketch6.AttachmentSupport = (doc.getObject("XY_Plane"), [""])
sketch6.MapMode = "FlatFace"
sketch6.addGeometry(Part.LineSegment(V(-28, -15, 0), V(-21, -22, 0)), False)
sketch6.addGeometry(Part.ArcOfCircle(Part.Circle(V(0, 0, 0), V(0, 0, 1), 30), math.radians(47), math.radians(227)), False)
sketch6.addGeometry(Part.LineSegment(V(21, 22, 0), V(13, 29, 0)), False)
sketch6.addGeometry(Part.ArcOfCircle(Part.Circle(V(-7, 7, 0), V(0, 0, 1), 30), math.radians(47), math.radians(227)), False)
sketch6.addConstraint(Sketcher.Constraint("Tangent", 0, 2, 1, 2))
sketch6.addConstraint(Sketcher.Constraint("Tangent", 1, 1, 2, 1))
sketch6.addConstraint(Sketcher.Constraint("Tangent", 2, 2, 3, 1))
sketch6.addConstraint(Sketcher.Constraint("Tangent", 3, 2, 0, 1))
sketch6.addConstraint(Sketcher.Constraint("Coincident", 1, 3, -1, 1))
sketch6.addConstraint(Sketcher.Constraint("Equal", 1, 3))
sketch6.addConstraint(Sketcher.Constraint("Radius", 1, 30.0))
sketch6.addConstraint(Sketcher.Constraint("Distance", 0, 10.0))
sketch6.addConstraint(Sketcher.Constraint("DistanceX", 0, 2, -1, 1, 20.632339))
pad2 = body.newObject("PartDesign::Pad", "Pad001")
pad2.Profile = sketch6
pad2.Length = 3

sketch7 = body.newObject("Sketcher::SketchObject", "Sketch006")
sketch7.AttachmentSupport = (doc.getObject("XY_Plane"), [""])
sketch7.MapMode = "FlatFace"
sketch7.AttachmentOffset = App.Placement(V(0, 0, 3), App.Rotation())
sketch7.addGeometry(Part.Circle(V(-21.8, 20.6, 0), V(0, 0, 1), 1.6), False)
sketch7.addGeometry(Part.Circle(V(21.8, -20.6, 0), V(0, 0, 1), 1.6), False)
sketch7.addConstraint(Sketcher.Constraint("Equal", 0, 1))
sketch7.addConstraint(Sketcher.Constraint("Symmetric", 0, 3, 1, 3, -1, 1))
sketch7.addConstraint(Sketcher.Constraint("Diameter", 0, 3.3))
sketch7.addConstraint(Sketcher.Constraint("DistanceX", 0, 3, -1, 1, 21.778581))
sketch7.addConstraint(Sketcher.Constraint("DistanceY", -1, 1, 0, 3, 20.632339))
pocket5 = body.newObject("PartDesign::Pocket", "Pocket004")
pocket5.Profile = sketch7
pocket5.Length = 3

doc.recompute()
